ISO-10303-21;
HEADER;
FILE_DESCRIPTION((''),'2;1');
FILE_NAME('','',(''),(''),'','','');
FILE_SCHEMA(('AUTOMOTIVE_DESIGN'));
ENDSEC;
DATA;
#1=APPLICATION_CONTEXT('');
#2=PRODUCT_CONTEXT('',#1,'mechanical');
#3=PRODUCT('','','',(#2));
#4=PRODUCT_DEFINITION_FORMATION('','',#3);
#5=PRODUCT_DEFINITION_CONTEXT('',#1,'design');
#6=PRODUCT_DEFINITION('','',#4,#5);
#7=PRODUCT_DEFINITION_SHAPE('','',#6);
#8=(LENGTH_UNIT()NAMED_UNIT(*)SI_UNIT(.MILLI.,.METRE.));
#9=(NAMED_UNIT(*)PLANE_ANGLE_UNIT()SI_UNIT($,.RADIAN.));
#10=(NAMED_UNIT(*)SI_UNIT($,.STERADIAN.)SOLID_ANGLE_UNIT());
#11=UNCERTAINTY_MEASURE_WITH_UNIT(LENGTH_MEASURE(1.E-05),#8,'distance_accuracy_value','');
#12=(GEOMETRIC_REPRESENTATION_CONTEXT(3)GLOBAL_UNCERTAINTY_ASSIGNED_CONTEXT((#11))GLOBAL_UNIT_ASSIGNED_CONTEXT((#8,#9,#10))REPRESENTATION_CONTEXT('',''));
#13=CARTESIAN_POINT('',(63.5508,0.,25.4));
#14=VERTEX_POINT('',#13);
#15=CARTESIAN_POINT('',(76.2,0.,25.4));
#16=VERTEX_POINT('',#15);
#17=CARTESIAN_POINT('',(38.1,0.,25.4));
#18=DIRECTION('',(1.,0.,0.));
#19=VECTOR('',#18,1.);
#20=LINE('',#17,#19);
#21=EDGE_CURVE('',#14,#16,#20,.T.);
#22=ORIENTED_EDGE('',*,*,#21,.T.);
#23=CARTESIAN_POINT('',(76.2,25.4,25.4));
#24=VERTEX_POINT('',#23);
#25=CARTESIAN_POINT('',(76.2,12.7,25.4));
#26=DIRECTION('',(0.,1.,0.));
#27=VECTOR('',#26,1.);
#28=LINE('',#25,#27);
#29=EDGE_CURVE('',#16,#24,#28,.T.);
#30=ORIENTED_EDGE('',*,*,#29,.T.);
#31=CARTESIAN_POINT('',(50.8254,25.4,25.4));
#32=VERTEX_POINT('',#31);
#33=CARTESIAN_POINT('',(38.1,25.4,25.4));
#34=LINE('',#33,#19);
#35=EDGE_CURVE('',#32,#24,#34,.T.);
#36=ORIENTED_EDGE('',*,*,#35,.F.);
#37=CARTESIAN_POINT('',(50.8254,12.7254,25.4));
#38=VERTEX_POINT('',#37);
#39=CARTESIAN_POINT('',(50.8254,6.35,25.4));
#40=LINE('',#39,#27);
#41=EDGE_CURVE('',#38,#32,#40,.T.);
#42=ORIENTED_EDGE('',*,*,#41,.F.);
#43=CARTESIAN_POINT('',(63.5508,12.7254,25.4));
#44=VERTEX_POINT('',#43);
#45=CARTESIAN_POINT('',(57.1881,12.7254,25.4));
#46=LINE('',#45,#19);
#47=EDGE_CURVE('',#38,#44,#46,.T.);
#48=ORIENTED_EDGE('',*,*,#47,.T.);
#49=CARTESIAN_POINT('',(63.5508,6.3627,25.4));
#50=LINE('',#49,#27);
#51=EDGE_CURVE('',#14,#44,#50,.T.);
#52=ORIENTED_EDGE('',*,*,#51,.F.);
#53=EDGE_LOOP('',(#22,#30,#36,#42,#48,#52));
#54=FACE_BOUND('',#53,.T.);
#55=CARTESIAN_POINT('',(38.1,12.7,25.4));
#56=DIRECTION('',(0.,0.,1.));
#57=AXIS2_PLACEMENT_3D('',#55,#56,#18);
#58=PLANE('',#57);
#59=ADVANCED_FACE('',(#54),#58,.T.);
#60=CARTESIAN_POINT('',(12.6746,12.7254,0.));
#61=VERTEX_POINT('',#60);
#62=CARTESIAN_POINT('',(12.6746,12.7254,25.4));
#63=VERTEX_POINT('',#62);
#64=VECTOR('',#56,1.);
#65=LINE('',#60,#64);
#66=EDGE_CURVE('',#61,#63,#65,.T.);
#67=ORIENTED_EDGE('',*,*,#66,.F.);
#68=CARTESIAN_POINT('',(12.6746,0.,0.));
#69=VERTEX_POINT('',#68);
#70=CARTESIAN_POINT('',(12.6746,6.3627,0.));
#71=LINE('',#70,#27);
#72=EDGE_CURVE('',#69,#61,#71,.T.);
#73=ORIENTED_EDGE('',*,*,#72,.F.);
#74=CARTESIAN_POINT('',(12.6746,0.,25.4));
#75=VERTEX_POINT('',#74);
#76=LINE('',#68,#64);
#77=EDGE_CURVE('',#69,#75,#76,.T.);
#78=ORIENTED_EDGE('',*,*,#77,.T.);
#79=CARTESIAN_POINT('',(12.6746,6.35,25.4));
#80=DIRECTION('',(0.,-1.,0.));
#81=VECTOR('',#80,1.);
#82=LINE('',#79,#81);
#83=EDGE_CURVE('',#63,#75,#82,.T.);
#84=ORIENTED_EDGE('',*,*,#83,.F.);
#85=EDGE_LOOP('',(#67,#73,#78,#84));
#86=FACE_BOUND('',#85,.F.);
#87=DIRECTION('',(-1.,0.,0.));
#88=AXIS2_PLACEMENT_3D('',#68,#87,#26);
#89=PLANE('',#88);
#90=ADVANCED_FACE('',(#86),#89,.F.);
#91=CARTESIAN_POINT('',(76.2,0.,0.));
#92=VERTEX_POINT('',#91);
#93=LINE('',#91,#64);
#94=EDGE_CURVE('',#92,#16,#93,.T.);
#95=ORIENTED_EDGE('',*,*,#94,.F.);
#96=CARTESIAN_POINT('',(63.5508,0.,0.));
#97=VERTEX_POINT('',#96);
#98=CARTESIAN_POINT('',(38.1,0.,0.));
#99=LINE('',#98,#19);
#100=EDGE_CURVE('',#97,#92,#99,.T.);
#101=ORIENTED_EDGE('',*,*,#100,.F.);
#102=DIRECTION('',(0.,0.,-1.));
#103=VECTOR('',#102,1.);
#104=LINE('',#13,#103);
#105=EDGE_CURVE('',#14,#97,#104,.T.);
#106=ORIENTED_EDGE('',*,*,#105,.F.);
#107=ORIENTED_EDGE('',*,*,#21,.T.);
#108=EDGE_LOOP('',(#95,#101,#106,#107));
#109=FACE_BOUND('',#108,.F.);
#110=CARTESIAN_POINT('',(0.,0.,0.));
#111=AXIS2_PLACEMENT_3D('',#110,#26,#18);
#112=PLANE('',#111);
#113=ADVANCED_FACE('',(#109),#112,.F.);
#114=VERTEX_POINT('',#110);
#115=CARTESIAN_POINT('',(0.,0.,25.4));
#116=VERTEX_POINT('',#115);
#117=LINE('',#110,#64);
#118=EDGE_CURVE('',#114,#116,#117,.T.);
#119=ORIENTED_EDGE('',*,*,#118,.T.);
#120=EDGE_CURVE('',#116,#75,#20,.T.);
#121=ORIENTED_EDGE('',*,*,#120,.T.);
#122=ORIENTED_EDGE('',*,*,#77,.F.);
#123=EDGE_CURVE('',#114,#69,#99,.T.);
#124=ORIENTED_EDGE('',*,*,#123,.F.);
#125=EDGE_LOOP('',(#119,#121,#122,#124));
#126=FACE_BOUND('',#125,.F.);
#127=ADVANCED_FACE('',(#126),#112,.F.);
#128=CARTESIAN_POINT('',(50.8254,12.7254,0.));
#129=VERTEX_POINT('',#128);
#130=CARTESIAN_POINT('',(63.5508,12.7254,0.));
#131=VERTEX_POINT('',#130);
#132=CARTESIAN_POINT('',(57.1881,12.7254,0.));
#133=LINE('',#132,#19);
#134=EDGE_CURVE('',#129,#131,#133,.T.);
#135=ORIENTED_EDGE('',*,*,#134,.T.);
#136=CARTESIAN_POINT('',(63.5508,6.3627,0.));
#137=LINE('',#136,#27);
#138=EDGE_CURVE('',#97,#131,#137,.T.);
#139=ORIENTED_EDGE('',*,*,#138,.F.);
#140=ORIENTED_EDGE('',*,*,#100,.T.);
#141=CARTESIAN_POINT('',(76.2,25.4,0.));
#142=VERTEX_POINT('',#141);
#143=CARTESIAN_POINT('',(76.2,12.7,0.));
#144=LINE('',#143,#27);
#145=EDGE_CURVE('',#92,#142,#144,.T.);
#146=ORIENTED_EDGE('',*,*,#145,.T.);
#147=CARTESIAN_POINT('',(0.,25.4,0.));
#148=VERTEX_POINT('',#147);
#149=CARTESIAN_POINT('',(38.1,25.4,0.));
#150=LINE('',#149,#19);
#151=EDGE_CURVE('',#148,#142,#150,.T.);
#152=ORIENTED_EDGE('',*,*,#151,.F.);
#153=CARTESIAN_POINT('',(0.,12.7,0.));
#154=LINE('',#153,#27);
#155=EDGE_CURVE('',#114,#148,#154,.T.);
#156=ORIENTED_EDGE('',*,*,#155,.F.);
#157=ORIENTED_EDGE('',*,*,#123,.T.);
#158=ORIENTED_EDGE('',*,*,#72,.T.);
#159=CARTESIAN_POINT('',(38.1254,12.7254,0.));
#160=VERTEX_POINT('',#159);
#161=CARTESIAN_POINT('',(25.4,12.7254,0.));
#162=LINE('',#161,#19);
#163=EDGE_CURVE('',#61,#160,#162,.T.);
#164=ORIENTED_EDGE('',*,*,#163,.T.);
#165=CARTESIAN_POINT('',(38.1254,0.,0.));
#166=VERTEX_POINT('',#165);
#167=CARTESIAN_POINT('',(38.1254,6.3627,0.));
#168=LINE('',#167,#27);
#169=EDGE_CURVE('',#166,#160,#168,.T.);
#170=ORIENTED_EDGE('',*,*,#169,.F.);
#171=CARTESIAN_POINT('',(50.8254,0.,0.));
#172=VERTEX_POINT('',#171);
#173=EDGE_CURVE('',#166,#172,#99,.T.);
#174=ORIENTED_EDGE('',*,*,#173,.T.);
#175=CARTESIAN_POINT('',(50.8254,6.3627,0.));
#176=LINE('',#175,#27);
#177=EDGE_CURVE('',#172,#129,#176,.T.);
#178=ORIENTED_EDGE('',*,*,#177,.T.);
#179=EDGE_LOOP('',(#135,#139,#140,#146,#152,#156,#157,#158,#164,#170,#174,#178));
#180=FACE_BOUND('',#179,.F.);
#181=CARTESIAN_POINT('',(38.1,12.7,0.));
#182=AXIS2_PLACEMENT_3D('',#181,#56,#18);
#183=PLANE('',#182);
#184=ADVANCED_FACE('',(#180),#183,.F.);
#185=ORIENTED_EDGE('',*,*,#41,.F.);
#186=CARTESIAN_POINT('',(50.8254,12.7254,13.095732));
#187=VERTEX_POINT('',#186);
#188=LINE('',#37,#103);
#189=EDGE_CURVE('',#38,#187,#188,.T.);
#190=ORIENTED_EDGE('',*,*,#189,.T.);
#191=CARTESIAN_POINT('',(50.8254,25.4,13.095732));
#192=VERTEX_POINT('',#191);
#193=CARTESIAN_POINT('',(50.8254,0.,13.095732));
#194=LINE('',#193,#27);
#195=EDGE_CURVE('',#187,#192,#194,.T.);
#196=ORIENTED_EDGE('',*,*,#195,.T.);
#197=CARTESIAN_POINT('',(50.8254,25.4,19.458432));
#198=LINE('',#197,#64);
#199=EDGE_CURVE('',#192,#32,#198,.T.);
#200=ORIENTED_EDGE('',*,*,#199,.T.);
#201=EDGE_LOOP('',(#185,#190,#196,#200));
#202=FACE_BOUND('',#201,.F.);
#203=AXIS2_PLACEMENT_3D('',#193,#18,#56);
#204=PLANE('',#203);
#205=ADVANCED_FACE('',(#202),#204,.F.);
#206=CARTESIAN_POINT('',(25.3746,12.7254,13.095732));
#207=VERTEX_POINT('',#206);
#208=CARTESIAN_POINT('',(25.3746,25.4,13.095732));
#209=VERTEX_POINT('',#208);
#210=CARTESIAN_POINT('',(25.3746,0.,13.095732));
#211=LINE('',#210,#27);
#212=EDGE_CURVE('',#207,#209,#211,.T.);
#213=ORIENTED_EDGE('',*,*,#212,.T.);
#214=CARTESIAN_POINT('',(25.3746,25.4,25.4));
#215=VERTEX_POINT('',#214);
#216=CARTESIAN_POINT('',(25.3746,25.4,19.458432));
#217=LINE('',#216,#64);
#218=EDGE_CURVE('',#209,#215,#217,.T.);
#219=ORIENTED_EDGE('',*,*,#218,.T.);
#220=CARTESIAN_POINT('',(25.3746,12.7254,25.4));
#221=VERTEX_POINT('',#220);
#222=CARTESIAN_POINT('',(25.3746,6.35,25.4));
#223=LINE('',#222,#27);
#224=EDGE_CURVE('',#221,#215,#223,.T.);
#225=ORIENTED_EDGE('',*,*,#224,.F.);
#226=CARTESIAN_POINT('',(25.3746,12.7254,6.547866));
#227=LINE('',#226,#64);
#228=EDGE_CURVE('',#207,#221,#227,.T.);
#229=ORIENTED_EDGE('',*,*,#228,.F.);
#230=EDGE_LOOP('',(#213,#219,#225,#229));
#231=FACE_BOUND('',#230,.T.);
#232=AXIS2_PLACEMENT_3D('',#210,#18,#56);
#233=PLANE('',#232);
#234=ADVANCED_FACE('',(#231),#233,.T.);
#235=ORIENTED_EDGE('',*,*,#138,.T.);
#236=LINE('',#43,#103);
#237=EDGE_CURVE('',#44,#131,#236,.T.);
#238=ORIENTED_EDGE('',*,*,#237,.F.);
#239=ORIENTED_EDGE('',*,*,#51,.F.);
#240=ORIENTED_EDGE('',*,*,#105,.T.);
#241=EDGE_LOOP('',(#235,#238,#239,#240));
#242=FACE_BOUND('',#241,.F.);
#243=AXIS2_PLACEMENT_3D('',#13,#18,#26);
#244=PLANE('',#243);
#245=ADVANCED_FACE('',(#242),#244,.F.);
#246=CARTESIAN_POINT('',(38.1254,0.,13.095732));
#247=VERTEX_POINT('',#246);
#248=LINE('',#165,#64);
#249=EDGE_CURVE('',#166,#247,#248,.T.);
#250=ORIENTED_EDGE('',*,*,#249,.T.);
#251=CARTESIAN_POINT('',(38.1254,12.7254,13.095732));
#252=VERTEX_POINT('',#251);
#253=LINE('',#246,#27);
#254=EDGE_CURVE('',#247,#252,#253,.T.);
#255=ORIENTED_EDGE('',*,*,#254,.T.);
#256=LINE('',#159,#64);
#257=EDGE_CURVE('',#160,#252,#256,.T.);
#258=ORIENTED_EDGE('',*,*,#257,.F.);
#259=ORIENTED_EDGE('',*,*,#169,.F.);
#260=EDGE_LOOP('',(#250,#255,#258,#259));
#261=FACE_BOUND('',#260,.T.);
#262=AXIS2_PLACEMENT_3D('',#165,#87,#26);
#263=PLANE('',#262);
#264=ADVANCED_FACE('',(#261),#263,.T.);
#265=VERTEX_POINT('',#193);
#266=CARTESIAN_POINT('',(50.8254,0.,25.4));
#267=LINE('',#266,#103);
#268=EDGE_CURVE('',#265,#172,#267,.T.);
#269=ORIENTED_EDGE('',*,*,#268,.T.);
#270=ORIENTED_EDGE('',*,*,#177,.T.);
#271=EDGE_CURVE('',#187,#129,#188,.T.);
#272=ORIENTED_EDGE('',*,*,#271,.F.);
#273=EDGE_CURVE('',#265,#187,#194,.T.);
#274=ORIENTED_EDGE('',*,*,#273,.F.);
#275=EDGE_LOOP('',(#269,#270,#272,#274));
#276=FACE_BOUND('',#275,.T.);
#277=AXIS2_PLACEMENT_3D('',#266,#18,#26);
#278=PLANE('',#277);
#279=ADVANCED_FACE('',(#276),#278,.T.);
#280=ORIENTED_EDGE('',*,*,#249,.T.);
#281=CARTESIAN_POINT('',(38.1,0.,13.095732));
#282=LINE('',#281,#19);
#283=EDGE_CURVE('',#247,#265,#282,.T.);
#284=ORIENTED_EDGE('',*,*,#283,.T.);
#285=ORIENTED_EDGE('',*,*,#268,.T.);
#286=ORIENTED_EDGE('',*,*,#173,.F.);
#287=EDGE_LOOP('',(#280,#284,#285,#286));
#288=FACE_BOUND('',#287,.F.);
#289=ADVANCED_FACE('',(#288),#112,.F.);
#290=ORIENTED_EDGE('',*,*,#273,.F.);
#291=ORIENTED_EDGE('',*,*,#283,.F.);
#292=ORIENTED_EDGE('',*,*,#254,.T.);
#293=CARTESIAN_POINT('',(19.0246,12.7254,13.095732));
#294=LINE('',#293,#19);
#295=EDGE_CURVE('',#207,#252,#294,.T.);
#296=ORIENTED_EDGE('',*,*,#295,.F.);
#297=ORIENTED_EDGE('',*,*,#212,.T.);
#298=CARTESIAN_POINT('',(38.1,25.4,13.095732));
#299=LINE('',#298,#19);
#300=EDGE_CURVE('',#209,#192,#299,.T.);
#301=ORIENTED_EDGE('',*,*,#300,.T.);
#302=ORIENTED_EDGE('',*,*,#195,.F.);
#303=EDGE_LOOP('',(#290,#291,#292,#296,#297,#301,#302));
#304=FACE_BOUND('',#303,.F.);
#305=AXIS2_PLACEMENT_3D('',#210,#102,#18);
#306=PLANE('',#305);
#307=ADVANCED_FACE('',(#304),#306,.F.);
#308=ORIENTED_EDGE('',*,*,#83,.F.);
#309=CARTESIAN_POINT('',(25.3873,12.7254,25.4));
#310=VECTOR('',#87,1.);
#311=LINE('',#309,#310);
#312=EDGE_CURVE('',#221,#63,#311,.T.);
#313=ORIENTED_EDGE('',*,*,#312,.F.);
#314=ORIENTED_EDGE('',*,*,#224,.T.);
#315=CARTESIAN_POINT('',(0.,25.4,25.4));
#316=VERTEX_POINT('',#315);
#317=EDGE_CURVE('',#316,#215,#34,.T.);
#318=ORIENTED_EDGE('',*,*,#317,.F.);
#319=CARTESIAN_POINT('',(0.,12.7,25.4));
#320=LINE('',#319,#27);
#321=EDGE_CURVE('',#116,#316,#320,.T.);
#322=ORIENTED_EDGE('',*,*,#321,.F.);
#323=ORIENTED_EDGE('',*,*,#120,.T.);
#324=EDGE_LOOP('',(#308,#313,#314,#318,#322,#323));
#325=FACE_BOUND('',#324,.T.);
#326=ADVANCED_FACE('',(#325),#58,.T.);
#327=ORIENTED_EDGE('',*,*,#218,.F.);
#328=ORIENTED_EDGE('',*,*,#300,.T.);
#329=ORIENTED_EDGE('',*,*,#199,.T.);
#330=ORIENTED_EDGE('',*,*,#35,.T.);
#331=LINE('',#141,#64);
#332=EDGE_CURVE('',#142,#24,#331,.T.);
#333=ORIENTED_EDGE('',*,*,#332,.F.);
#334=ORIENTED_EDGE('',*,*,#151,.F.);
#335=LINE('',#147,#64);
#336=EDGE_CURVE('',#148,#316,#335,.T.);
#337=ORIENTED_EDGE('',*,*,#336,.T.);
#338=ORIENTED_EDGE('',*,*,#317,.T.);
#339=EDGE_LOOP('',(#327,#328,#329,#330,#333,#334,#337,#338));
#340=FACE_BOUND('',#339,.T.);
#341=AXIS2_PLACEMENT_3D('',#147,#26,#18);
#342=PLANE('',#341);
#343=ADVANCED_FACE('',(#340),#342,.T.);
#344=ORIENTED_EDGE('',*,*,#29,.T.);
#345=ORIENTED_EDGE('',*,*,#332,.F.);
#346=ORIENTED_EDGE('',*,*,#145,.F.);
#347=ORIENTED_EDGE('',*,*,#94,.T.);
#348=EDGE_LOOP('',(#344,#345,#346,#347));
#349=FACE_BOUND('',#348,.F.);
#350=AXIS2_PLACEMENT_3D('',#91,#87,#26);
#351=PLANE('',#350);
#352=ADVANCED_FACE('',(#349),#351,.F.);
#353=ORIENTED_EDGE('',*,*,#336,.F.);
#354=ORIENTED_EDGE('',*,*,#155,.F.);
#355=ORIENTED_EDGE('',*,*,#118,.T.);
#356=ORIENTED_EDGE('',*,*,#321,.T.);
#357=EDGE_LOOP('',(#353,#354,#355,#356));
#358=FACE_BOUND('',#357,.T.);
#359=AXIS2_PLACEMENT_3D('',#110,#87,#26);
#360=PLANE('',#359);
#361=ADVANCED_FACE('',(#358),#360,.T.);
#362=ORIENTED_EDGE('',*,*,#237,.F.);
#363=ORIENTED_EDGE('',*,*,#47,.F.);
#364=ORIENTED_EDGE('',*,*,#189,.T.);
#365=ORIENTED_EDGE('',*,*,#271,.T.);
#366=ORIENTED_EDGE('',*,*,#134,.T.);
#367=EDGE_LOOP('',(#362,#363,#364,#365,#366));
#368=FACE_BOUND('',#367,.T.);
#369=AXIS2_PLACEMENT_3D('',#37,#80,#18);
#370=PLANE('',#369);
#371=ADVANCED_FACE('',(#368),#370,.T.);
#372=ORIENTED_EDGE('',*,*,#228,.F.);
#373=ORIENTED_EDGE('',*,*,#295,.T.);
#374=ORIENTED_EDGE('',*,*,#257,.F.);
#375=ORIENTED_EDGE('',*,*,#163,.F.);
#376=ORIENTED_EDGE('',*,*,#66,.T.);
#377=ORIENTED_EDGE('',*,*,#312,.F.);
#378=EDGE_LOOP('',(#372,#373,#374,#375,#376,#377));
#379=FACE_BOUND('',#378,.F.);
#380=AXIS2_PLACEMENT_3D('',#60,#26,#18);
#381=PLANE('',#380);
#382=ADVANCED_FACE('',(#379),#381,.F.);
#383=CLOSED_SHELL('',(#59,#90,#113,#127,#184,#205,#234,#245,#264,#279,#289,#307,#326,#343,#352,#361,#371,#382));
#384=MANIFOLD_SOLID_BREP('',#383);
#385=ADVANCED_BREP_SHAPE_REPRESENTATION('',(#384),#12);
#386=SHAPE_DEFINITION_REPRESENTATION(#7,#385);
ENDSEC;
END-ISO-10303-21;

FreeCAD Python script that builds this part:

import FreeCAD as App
import Part
import Sketcher
from FreeCAD import Vector
Q = App.Units.Quantity


def add_polygon(sketch, points):
    """Adds a closed chain of lines whose ends are joined by coincident constraints."""
    first, n = sketch.GeometryCount, len(points)
    for a, b in zip(points, points[1:] + points[:1]):
        sketch.addGeometry(Part.LineSegment(App.Vector(*a, 0), App.Vector(*b, 0)), False)
    for i in range(n):
        sketch.addConstraint(Sketcher.Constraint("Coincident", first + i, 2, first + (i + 1) % n, 1))

doc = App.newDocument("Part")
body = doc.addObject("PartDesign::Body", "Body")

# Sketch on XY plane
sketch1 = body.newObject("Sketcher::SketchObject", "Sketch")
sketch1.AttachmentSupport = (doc.getObject("XY_Plane"), [""])
sketch1.MapMode = "FlatFace"
add_polygon(sketch1, [(0, 25), (0, 0), (76, 0), (76, 25)])  # lines 0-3
sketch1.addConstraint([
    Sketcher.Constraint("Vertical", 0),
    Sketcher.Constraint("Horizontal", 1),
    Sketcher.Constraint("Vertical", 2),
    Sketcher.Constraint("Horizontal", 3),
    Sketcher.Constraint("Coincident", 0, 2, -1, 1),
    Sketcher.Constraint("DistanceX", 1, 1, 1, 2, Q("3 in")),
    Sketcher.Constraint("DistanceY", 0, 2, 0, 1, Q("1 in")),
])
pad1 = body.newObject("PartDesign::Pad", "Pad")
pad1.Profile = sketch1
pad1.Length = Q("1 in")

# Sketch on XZ plane
sketch2 = body.newObject("Sketcher::SketchObject", "Sketch001")
sketch2.AttachmentSupport = (doc.getObject("XZ_Plane"), [""])
sketch2.MapMode = "FlatFace"
add_polygon(sketch2, [(25, 26), (25, 13), (51, 13), (51, 26)])  # lines 0-3
sketch2.addConstraint([
    Sketcher.Constraint("Vertical", 0),
    Sketcher.Constraint("Horizontal", 1),
    Sketcher.Constraint("Vertical", 2),
    Sketcher.Constraint("Horizontal", 3),
    Sketcher.Constraint("DistanceX", 1, 1, 1, 2, Q("1.002 in")),
    Sketcher.Constraint("DistanceY", 0, 2, 0, 1, Q("0.501 in")),
    Sketcher.Constraint("DistanceX", -1, 1, 0, 2, Q("0.999 in")),
    Sketcher.Constraint("DistanceY", -1, 1, 2, 2, Q("25.821132 mm")),
])
pocket1 = body.newObject("PartDesign::Pocket", "Pocket")
pocket1.Profile = sketch2
pocket1.Length = Q("1 in")

# Sketch on XY plane
sketch3 = body.newObject("Sketcher::SketchObject", "Sketch002")
sketch3.AttachmentSupport = (doc.getObject("XY_Plane"), [""])
sketch3.MapMode = "FlatFace"
sketch3.AttachmentOffset = App.Placement(Vector(0, 0, 1 * 25.4), App.Rotation())
add_polygon(sketch3, [(51, 13), (51, 0), (64, 0), (64, 13)])  # lines 0-3
sketch3.addConstraint([
    Sketcher.Constraint("Vertical", 0),
    Sketcher.Constraint("Horizontal", 1),
    Sketcher.Constraint("Vertical", 2),
    Sketcher.Constraint("Horizontal", 3),
    Sketcher.Constraint("PointOnObject", 0, 2, -1),
    Sketcher.Constraint("Equal", 3, 0),
    Sketcher.Constraint("DistanceX", 1, 1, 1, 2, Q("0.501 in")),
    Sketcher.Constraint("DistanceX", -1, 1, 0, 2, Q("2.001 in")),
])
pocket2 = body.newObject("PartDesign::Pocket", "Pocket001")
pocket2.Profile = sketch3
pocket2.Length = Q("1 in")

# Sketch on XY plane
sketch4 = body.newObject("Sketcher::SketchObject", "Sketch003")
sketch4.AttachmentSupport = (doc.getObject("XY_Plane"), [""])
sketch4.MapMode = "FlatFace"
add_polygon(sketch4, [(13, 13), (13, 0), (38, 0), (38, 13)])  # lines 0-3
sketch4.addConstraint([
    Sketcher.Constraint("Vertical", 0),
    Sketcher.Constraint("Horizontal", 1),
    Sketcher.Constraint("Vertical", 2),
    Sketcher.Constraint("Horizontal", 3),
    Sketcher.Constraint("PointOnObject", 0, 2, -1),
    Sketcher.Constraint("DistanceX", 1, 1, 1, 2, Q("1.002 in")),
    Sketcher.Constraint("DistanceY", 0, 2, 0, 1, Q("0.501 in")),
    Sketcher.Constraint("DistanceX", -1, 1, 0, 2, Q("0.499 in")),
])
pocket3 = body.newObject("PartDesign::Pocket", "Pocket002")
pocket3.Profile = sketch4
pocket3.Length = Q("1.01 in")
pocket3.Reversed = True

doc.recompute()
